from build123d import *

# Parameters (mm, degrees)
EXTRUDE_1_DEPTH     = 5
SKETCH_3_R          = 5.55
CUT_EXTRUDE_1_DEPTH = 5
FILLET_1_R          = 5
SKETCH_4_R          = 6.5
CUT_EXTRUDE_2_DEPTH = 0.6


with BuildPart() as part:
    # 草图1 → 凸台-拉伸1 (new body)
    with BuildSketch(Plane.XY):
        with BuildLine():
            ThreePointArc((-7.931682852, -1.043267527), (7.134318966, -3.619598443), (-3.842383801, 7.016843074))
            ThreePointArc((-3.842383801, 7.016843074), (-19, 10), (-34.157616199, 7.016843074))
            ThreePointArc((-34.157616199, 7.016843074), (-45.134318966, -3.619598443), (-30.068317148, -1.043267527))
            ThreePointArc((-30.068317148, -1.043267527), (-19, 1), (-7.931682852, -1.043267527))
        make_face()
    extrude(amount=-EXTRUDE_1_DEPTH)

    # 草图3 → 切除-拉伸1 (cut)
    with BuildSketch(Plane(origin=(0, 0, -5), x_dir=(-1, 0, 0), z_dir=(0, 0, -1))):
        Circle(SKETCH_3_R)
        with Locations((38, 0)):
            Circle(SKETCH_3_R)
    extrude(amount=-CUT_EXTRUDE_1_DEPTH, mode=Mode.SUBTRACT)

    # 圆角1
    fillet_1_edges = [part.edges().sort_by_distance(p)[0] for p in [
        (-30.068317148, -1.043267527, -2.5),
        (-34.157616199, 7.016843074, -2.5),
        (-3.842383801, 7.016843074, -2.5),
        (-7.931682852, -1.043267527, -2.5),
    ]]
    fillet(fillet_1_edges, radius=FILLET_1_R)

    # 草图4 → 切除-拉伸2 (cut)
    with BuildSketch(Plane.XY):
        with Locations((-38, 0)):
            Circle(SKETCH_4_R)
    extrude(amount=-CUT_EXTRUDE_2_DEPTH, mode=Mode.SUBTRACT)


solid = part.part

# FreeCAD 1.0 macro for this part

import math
import FreeCAD as App
import Part
import Sketcher
from FreeCAD import Vector
Q = App.Units.Quantity


def edges_at(feature, points):
    """Names of the edges that pass closest to the given points."""
    edges = feature.Shape.Edges
    near = lambda p: min(range(len(edges)), key=lambda i: edges[i].distToShape(Part.Vertex(*p))[0])
    return sorted({f"Edge{near(p) + 1}" for p in points})

doc = App.newDocument("Part")
body = doc.addObject("PartDesign::Body", "Body")

# Sketch on XY plane
sketch1 = body.newObject("Sketcher::SketchObject", "Sketch")
sketch1.AttachmentSupport = (doc.getObject("XY_Plane"), [""])
sketch1.MapMode = "FlatFace"
sketch1.addGeometry(Part.ArcOfCircle(Part.Circle(Vector(0, 0, 0), Vector(0, 0, 1), 8), math.radians(-173), math.radians(119)), False)
sketch1.addGeometry(Part.ArcOfCircle(Part.Circle(Vector(-19, -30, 0), Vector(0, 0, 1), 40), math.radians(68), math.radians(112)), False)
sketch1.addGeometry(Part.ArcOfCircle(Part.Circle(Vector(-38, 0, 0), Vector(0, 0, 1), 8), math.radians(61), math.radians(353)), False)
sketch1.addGeometry(Part.ArcOfCircle(Part.Circle(Vector(-19, -30, 0), Vector(0, 0, 1), 31), math.radians(69), math.radians(111)), False)
sketch1.addConstraint(Sketcher.Constraint("Coincident", 0, 2, 1, 1))
sketch1.addConstraint(Sketcher.Constraint("Coincident", 1, 2, 2, 1))
sketch1.addConstraint(Sketcher.Constraint("Coincident", 2, 2, 3, 2))
sketch1.addConstraint(Sketcher.Constraint("Coincident", 3, 1, 0, 1))
sketch1.addConstraint(Sketcher.Constraint("Coincident", 0, 3, -1, 1))
sketch1.addConstraint(Sketcher.Constraint("Coincident", 3, 3, 1, 3))
sketch1.addConstraint(Sketcher.Constraint("Equal", 0, 2))
sketch1.addConstraint(Sketcher.Constraint("PointOnObject", 2, 3, -1))
sketch1.addConstraint(Sketcher.Constraint("Horizontal", 0, 2, 1, 2))
sketch1.addConstraint(Sketcher.Constraint("Radius", 0, Q("8 mm")))
sketch1.addConstraint(Sketcher.Constraint("Radius", 1, Q("40 mm")))
sketch1.addConstraint(Sketcher.Constraint("Radius", 3, Q("31 mm")))
sketch1.addConstraint(Sketcher.Constraint("DistanceX", 1, 3, -1, 1, Q("19 mm")))
sketch1.addConstraint(Sketcher.Constraint("DistanceY", 1, 3, -1, 1, Q("30 mm")))
pad1 = body.newObject("PartDesign::Pad", "Pad")
pad1.Profile = sketch1
pad1.Length = 5
pad1.Reversed = True

# Sketch on XY plane
sketch2 = body.newObject("Sketcher::SketchObject", "Sketch001")
sketch2.AttachmentSupport = (doc.getObject("XY_Plane"), [""])
sketch2.MapMode = "FlatFace"
sketch2.AttachmentOffset = App.Placement(Vector(0, 0, -5), App.Rotation())
sketch2.addGeometry(Part.Circle(Vector(0, 0, 0), Vector(0, 0, 1), 6), False)
sketch2.addGeometry(Part.Circle(Vector(-38, 0, 0), Vector(0, 0, 1), 6), False)
sketch2.addConstraint(Sketcher.Constraint("Coincident", 0, 3, -1, 1))
sketch2.addConstraint(Sketcher.Constraint("Equal", 0, 1))
sketch2.addConstraint(Sketcher.Constraint("PointOnObject", 1, 3, -1))
sketch2.addConstraint(Sketcher.Constraint("Diameter", 0, Q("11.1 mm")))
sketch2.addConstraint(Sketcher.Constraint("DistanceX", 1, 3, -1, 1, Q("38 mm")))
pocket1 = body.newObject("PartDesign::Pocket", "Pocket")
pocket1.Profile = sketch2
pocket1.Length = 5
pocket1.Reversed = True
doc.recompute()

fillet = body.newObject("PartDesign::Fillet", "Fillet")
fillet.Base = (pocket1, edges_at(pocket1, [
    (-30.068, -1.043, -2.5),
    (-34.158, 7.017, -2.5),
    (-3.842, 7.017, -2.5),
    (-7.932, -1.043, -2.5),
]))
fillet.Radius = 5

# Sketch on XY plane
sketch3 = body.newObject("Sketcher::SketchObject", "Sketch002")
sketch3.AttachmentSupport = (doc.getObject("XY_Plane"), [""])
sketch3.MapMode = "FlatFace"
sketch3.addGeometry(Part.Circle(Vector(-38, 0, 0), Vector(0, 0, 1), 6), False)
sketch3.addConstraint(Sketcher.Constraint("PointOnObject", 0, 3, -1))
sketch3.addConstraint(Sketcher.Constraint("Diameter", 0, Q("13 mm")))
sketch3.addConstraint(Sketcher.Constraint("DistanceX", 0, 3, -1, 1, Q("38 mm")))
pocket2 = body.newObject("PartDesign::Pocket", "Pocket001")
pocket2.Profile = sketch3
pocket2.Length = 0.6

doc.recompute()
